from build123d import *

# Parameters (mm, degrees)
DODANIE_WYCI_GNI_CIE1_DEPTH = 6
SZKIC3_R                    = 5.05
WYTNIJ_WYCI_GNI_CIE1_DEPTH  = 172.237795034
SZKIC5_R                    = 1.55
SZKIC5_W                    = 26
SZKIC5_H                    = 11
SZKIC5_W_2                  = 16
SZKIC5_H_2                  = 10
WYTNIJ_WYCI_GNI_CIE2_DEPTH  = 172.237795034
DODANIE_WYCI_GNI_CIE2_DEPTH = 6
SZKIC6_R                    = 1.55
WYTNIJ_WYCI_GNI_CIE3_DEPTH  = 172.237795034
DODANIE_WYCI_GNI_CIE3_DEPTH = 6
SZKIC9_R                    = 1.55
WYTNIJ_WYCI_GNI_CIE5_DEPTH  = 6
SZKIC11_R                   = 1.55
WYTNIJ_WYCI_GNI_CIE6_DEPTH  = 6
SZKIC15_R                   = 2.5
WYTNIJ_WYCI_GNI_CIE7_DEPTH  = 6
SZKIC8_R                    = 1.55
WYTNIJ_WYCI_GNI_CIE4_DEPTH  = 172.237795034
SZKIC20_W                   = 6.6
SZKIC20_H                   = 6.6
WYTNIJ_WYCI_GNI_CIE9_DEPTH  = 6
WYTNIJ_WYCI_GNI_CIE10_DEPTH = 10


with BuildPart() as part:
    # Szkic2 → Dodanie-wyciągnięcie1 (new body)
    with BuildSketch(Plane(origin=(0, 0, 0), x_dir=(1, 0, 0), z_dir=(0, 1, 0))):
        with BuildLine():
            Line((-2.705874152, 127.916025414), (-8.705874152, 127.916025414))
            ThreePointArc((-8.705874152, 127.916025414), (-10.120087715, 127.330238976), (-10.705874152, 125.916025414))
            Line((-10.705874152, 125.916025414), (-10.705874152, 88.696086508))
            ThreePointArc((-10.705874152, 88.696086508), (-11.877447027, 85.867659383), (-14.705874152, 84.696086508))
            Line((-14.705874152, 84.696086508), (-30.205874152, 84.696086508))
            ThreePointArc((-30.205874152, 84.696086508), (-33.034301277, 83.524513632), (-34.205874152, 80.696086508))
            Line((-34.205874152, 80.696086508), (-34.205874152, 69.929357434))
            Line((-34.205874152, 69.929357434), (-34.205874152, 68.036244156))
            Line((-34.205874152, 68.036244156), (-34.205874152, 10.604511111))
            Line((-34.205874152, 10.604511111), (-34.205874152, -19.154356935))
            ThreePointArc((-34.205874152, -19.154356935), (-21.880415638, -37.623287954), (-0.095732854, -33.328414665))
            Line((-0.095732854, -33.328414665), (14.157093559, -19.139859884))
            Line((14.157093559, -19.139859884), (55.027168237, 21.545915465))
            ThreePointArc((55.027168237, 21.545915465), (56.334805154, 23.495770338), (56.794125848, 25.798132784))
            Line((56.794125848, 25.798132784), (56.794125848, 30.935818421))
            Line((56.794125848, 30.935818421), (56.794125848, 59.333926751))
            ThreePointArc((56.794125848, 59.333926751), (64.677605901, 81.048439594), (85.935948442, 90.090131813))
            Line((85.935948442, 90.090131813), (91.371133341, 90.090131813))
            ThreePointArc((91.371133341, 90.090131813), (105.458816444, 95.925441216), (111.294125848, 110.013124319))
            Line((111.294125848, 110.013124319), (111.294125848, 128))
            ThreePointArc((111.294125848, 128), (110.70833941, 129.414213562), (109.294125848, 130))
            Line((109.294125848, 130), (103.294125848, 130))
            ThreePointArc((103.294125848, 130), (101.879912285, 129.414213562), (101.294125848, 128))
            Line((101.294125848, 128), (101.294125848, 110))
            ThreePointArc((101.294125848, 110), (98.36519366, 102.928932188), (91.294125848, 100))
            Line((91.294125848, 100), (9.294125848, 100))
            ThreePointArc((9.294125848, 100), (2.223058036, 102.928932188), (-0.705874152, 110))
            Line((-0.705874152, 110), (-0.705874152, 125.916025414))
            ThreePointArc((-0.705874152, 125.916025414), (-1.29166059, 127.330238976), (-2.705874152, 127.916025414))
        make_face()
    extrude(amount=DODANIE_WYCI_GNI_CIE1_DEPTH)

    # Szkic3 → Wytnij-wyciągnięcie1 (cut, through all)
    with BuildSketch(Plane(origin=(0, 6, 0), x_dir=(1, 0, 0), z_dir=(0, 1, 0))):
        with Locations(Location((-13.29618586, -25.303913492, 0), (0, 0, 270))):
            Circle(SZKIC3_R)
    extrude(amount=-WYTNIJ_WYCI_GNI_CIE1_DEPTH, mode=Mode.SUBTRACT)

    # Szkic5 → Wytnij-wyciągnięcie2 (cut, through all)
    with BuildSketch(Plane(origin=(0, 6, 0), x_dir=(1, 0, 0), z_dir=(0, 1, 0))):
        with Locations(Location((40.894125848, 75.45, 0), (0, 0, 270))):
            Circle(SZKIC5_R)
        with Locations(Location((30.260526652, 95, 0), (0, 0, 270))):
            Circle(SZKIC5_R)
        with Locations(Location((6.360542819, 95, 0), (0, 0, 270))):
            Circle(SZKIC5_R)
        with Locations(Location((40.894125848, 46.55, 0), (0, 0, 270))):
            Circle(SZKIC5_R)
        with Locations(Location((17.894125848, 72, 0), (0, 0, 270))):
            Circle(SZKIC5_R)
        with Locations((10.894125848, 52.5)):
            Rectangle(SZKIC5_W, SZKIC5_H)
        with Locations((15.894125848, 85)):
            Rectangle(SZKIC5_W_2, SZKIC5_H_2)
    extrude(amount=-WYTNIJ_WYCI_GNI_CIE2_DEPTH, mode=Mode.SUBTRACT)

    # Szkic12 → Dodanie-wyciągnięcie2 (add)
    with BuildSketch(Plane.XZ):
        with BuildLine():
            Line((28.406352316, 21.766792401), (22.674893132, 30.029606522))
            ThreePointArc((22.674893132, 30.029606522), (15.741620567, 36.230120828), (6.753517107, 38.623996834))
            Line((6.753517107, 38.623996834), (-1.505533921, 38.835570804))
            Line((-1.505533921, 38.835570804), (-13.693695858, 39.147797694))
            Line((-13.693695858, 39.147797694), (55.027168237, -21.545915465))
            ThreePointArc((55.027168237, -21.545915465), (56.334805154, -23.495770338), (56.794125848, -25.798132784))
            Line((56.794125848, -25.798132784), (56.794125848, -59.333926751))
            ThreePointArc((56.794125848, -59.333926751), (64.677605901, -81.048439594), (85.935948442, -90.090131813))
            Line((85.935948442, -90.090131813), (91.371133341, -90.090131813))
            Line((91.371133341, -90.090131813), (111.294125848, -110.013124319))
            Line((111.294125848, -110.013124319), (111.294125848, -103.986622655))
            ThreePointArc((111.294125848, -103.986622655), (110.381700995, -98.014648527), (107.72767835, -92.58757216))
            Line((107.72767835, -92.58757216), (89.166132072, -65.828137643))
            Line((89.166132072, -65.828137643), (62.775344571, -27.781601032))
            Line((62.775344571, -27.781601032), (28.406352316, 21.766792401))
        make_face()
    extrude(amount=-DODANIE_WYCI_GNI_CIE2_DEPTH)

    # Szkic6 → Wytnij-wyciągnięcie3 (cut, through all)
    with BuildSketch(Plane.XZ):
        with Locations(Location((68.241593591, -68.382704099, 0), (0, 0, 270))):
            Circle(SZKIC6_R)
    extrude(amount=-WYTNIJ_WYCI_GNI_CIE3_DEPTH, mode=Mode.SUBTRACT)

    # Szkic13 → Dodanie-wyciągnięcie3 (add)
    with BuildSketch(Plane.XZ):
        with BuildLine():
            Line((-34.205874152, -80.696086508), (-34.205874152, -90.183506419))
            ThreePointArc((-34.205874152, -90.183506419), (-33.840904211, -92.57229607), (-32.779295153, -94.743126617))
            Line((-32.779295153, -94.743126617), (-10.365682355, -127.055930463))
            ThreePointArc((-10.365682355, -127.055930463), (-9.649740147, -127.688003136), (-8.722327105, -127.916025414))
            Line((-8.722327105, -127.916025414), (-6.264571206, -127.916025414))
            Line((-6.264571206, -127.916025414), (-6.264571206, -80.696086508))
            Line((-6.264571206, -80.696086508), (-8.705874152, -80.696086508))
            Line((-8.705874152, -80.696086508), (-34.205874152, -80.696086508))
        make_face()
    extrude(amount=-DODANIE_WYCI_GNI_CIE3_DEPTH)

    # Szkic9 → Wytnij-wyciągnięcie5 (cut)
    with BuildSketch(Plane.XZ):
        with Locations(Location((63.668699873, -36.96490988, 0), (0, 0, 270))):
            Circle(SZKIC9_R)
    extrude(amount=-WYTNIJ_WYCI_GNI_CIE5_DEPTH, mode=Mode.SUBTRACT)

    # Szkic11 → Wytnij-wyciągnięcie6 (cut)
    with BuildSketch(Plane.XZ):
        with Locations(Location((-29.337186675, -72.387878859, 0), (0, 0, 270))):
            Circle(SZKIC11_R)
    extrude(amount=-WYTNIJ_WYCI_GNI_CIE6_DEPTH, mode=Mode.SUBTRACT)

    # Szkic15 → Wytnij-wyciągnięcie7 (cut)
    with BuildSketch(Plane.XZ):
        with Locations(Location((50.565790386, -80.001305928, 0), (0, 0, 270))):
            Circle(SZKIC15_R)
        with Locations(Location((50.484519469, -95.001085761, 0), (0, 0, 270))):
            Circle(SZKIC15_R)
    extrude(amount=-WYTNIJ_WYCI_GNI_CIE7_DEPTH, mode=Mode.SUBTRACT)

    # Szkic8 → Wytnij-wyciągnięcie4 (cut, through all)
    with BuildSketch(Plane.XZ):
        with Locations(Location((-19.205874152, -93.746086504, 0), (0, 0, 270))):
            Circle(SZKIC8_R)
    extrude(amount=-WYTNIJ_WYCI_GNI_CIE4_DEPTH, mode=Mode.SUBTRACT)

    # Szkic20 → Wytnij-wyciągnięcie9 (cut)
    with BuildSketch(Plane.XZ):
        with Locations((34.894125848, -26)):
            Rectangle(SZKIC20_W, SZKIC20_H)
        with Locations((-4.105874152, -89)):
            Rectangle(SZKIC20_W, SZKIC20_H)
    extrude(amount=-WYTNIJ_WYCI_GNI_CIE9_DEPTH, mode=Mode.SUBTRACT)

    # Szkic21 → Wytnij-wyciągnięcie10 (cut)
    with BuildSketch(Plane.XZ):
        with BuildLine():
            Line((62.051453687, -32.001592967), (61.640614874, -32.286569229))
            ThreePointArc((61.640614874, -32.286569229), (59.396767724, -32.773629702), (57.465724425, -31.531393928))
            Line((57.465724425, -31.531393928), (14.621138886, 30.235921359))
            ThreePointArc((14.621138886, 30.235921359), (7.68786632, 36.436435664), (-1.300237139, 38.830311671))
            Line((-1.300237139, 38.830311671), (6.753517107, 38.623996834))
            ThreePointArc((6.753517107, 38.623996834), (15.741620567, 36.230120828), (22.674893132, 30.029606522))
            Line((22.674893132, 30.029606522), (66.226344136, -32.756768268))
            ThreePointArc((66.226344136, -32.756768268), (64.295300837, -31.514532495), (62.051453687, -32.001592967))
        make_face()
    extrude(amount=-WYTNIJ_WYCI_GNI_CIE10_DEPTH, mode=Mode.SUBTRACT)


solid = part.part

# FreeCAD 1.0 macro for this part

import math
import FreeCAD as App
import Part
import Sketcher
from FreeCAD import Vector
Q = App.Units.Quantity


def add_polygon(sketch, points):
    """Adds a closed chain of lines whose ends are joined by coincident constraints."""
    first, n = sketch.GeometryCount, len(points)
    for a, b in zip(points, points[1:] + points[:1]):
        sketch.addGeometry(Part.LineSegment(App.Vector(*a, 0), App.Vector(*b, 0)), False)
    for i in range(n):
        sketch.addConstraint(Sketcher.Constraint("Coincident", first + i, 2, first + (i + 1) % n, 1))

doc = App.newDocument("Part")
params = doc.addObject("Spreadsheet::Sheet", "Params")
for row, (alias, value) in enumerate([
    ("sketch1_radius", "2 mm"),
    ("sketch1_radius2", "4 mm"),
    ("sketch1_radius3", "20 mm"),
    ("sketch1_radius4", "6 mm"),
    ("sketch1_radius5", "10 mm"),
    ("pad1_length", "6 mm"),
    ("sketch2_diameter", "10.1 mm"),
    ("sketch3_diameter", "3.1 mm"),
    ("sketch3_width", "26 mm"),
    ("sketch3_width2", "16 mm"),
    ("sketch3_height", "11 mm"),
    ("sketch3_height2", "10 mm"),
    ("sketch4_radius", "20 mm"),
    ("sketch4_radius2", "6 mm"),
    ("pad2_length", "6 mm"),
    ("sketch5_diameter", "3.1 mm"),
    ("sketch6_radius", "8 mm"),
    ("sketch6_radius2", "2 mm"),
    ("pad3_length", "6 mm"),
    ("sketch7_diameter", "3.1 mm"),
    ("pocket4_length", "6 mm"),
    ("sketch8_diameter", "3.1 mm"),
    ("pocket5_length", "6 mm"),
    ("sketch9_diameter", "5 mm"),
    ("pocket6_length", "6 mm"),
    ("sketch10_diameter", "3.1 mm"),
    ("sketch11_width", "6.6 mm"),
    ("pocket8_length", "6 mm"),
    ("sketch12_radius", "3 mm"),
    ("sketch12_radius2", "20 mm"),
    ("sketch12_length", "0.5 mm"),
    ("pocket9_length", "10 mm"),
], start=1):
    params.set(f"A{row}", alias)
    params.set(f"B{row}", "=" + value)
    params.setAlias(f"B{row}", alias)

body = doc.addObject("PartDesign::Body", "Body")

# Sketch on XZ plane
sketch1 = body.newObject("Sketcher::SketchObject", "Sketch")
sketch1.AttachmentSupport = (doc.getObject("XZ_Plane"), [""])
sketch1.MapMode = "FlatFace"
sketch1.addGeometry(Part.LineSegment(Vector(-2.7, -127.9, 0), Vector(-8.7, -127.9, 0)), False)
sketch1.addGeometry(Part.ArcOfCircle(Part.Circle(Vector(-8.7, -125.9, 0), Vector(0, 0, 1), 2), math.radians(180), math.radians(270)), False)
sketch1.addGeometry(Part.LineSegment(Vector(-10.7, -125.9, 0), Vector(-10.7, -88.7, 0)), False)
sketch1.addGeometry(Part.ArcOfCircle(Part.Circle(Vector(-14.7, -88.7, 0), Vector(0, 0, 1), 4), math.radians(0), math.radians(90)), False)
sketch1.addGeometry(Part.LineSegment(Vector(-14.7, -84.7, 0), Vector(-30.2, -84.7, 0)), False)
sketch1.addGeometry(Part.ArcOfCircle(Part.Circle(Vector(-30.2, -80.7, 0), Vector(0, 0, 1), 4), math.radians(-180), math.radians(-90)), False)
sketch1.addGeometry(Part.LineSegment(Vector(-34.2, -80.7, 0), Vector(-34.2, 19.2, 0)), False)
sketch1.addGeometry(Part.ArcOfCircle(Part.Circle(Vector(-14.2, 19.2, 0), Vector(0, 0, 1), 20), math.radians(45), math.radians(180)), False)
sketch1.addGeometry(Part.LineSegment(Vector(-0.1, 33.3, 0), Vector(14.2, 19.1, 0)), False)
sketch1.addGeometry(Part.LineSegment(Vector(14.2, 19.1, 0), Vector(55, -21.5, 0)), False)
sketch1.addGeometry(Part.ArcOfCircle(Part.Circle(Vector(50.8, -25.8, 0), Vector(0, 0, 1), 6), math.radians(0), math.radians(45)), False)
sketch1.addGeometry(Part.LineSegment(Vector(56.8, -25.8, 0), Vector(56.8, -59.3, 0)), False)
sketch1.addGeometry(Part.ArcOfCircle(Part.Circle(Vector(85.7, -61.1, 0), Vector(0, 0, 1), 29), math.radians(176), math.radians(270)), False)
sketch1.addGeometry(Part.LineSegment(Vector(85.9, -90.1, 0), Vector(91.4, -90.1, 0)), False)
sketch1.addGeometry(Part.ArcOfCircle(Part.Circle(Vector(91.4, -110, 0), Vector(0, 0, 1), 19.9), math.radians(0), math.radians(90)), False)
sketch1.addGeometry(Part.LineSegment(Vector(111.3, -110, 0), Vector(111.3, -128, 0)), False)
sketch1.addGeometry(Part.ArcOfCircle(Part.Circle(Vector(109.3, -128, 0), Vector(0, 0, 1), 2), math.radians(-90), math.radians(0)), False)
sketch1.addGeometry(Part.LineSegment(Vector(109.3, -130, 0), Vector(103.3, -130, 0)), False)
sketch1.addGeometry(Part.ArcOfCircle(Part.Circle(Vector(103.3, -128, 0), Vector(0, 0, 1), 2), math.radians(180), math.radians(270)), False)
sketch1.addGeometry(Part.LineSegment(Vector(101.3, -128, 0), Vector(101.3, -110, 0)), False)
sketch1.addGeometry(Part.ArcOfCircle(Part.Circle(Vector(91.3, -110, 0), Vector(0, 0, 1), 10), math.radians(0), math.radians(90)), False)
sketch1.addGeometry(Part.LineSegment(Vector(91.3, -100, 0), Vector(9.3, -100, 0)), False)
sketch1.addGeometry(Part.ArcOfCircle(Part.Circle(Vector(9.3, -110, 0), Vector(0, 0, 1), 10), math.radians(90), math.radians(180)), False)
sketch1.addGeometry(Part.LineSegment(Vector(-0.7, -110, 0), Vector(-0.7, -125.9, 0)), False)
sketch1.addGeometry(Part.ArcOfCircle(Part.Circle(Vector(-2.7, -125.9, 0), Vector(0, 0, 1), 2), math.radians(-90), math.radians(0)), False)
sketch1.addConstraint(Sketcher.Constraint("Tangent", 0, 2, 1, 2))
sketch1.addConstraint(Sketcher.Constraint("Tangent", 1, 1, 2, 1))
sketch1.addConstraint(Sketcher.Constraint("Tangent", 2, 2, 3, 1))
sketch1.addConstraint(Sketcher.Constraint("Tangent", 3, 2, 4, 1))
sketch1.addConstraint(Sketcher.Constraint("Tangent", 4, 2, 5, 2))
sketch1.addConstraint(Sketcher.Constraint("Tangent", 5, 1, 6, 1))
sketch1.addConstraint(Sketcher.Constraint("Tangent", 6, 2, 7, 2))
sketch1.addConstraint(Sketcher.Constraint("Tangent", 7, 1, 8, 1))
sketch1.addConstraint(Sketcher.Constraint("Coincident", 8, 2, 9, 1))
sketch1.addConstraint(Sketcher.Constraint("Tangent", 9, 2, 10, 2))
sketch1.addConstraint(Sketcher.Constraint("Tangent", 10, 1, 11, 1))
sketch1.addConstraint(Sketcher.Constraint("Coincident", 11, 2, 12, 1))
sketch1.addConstraint(Sketcher.Constraint("Coincident", 12, 2, 13, 1))
sketch1.addConstraint(Sketcher.Constraint("Tangent", 13, 2, 14, 2))
sketch1.addConstraint(Sketcher.Constraint("Tangent", 14, 1, 15, 1))
sketch1.addConstraint(Sketcher.Constraint("Tangent", 15, 2, 16, 2))
sketch1.addConstraint(Sketcher.Constraint("Tangent", 16, 1, 17, 1))
sketch1.addConstraint(Sketcher.Constraint("Tangent", 17, 2, 18, 2))
sketch1.addConstraint(Sketcher.Constraint("Tangent", 18, 1, 19, 1))
sketch1.addConstraint(Sketcher.Constraint("Tangent", 19, 2, 20, 1))
sketch1.addConstraint(Sketcher.Constraint("Tangent", 20, 2, 21, 1))
sketch1.addConstraint(Sketcher.Constraint("Tangent", 21, 2, 22, 1))
sketch1.addConstraint(Sketcher.Constraint("Tangent", 22, 2, 23, 1))
sketch1.addConstraint(Sketcher.Constraint("Tangent", 23, 2, 24, 2))
sketch1.addConstraint(Sketcher.Constraint("Tangent", 24, 1, 0, 1))
sketch1.addConstraint(Sketcher.Constraint("Horizontal", 0))
sketch1.addConstraint(Sketcher.Constraint("Vertical", 2))
sketch1.addConstraint(Sketcher.Constraint("Horizontal", 4))
sketch1.addConstraint(Sketcher.Constraint("Vertical", 6))
sketch1.addConstraint(Sketcher.Constraint("Vertical", 11))
sketch1.addConstraint(Sketcher.Constraint("Horizontal", 13))
sketch1.addConstraint(Sketcher.Constraint("Vertical", 15))
sketch1.addConstraint(Sketcher.Constraint("Horizontal", 17))
sketch1.addConstraint(Sketcher.Constraint("Vertical", 19))
sketch1.addConstraint(Sketcher.Constraint("Horizontal", 21))
sketch1.addConstraint(Sketcher.Constraint("Vertical", 23))
sketch1.addConstraint(Sketcher.Constraint("Equal", 3, 5))
sketch1.addConstraint(Sketcher.Constraint("Equal", 1, 16))
sketch1.addConstraint(Sketcher.Constraint("Equal", 16, 18))
sketch1.addConstraint(Sketcher.Constraint("Equal", 20, 22))
sketch1.addConstraint(Sketcher.Constraint("Equal", 18, 24))
sketch1.addConstraint(Sketcher.Constraint("Parallel", 8, 9))
sketch1.addConstraint(Sketcher.Constraint("Equal", 0, 17))
sketch1.addConstraint(Sketcher.Constraint("Radius", 1, 2.0))
sketch1.addConstraint(Sketcher.Constraint("Radius", 3, 4.0))
sketch1.addConstraint(Sketcher.Constraint("Radius", 7, 20.0))
sketch1.addConstraint(Sketcher.Constraint("Radius", 10, 6.0))
sketch1.addConstraint(Sketcher.Constraint("Radius", 20, 10.0))
sketch1.addConstraint(Sketcher.Constraint("DistanceX", 0, 2, 0, 1, 6.0))
sketch1.addConstraint(Sketcher.Constraint("DistanceX", 21, 2, 21, 1, 82.0))
sketch1.addConstraint(Sketcher.Constraint("DistanceY", 19, 1, 19, 2, 18.0))
sketch1.addConstraint(Sketcher.Constraint("DistanceX", 4, 2, 4, 1, 15.5))
sketch1.addConstraint(Sketcher.Constraint("DistanceY", 16, 3, -1, 1, 128.0))
sketch1.addConstraint(Sketcher.Constraint("DistanceX", 7, 3, 10, 3, 65.0))
sketch1.addConstraint(Sketcher.Constraint("Radius", 12, 28.964128))
sketch1.addConstraint(Sketcher.Constraint("Radius", 14, 19.922993))
sketch1.addConstraint(Sketcher.Constraint("DistanceY", 2, 1, 2, 2, 37.219939))
sketch1.addConstraint(Sketcher.Constraint("DistanceY", 12, 3, 7, 3, 80.2813))
sketch1.addConstraint(Sketcher.Constraint("DistanceY", 1, 3, 14, 3, 15.902901))
sketch1.addConstraint(Sketcher.Constraint("DistanceY", 5, 3, 7, 1, 114.024501))
sketch1.addConstraint(Sketcher.Constraint("Distance", 9, 57.668842))
sketch1.addConstraint(Sketcher.Constraint("DistanceX", 13, 1, 13, 2, 5.435185))
sketch1.addConstraint(Sketcher.Constraint("DistanceY", 11, 2, 11, 1, 33.535794))
sketch1.addConstraint(Sketcher.Constraint("DistanceY", 15, 2, 15, 1, 17.986876))
sketch1.addConstraint(Sketcher.Constraint("DistanceX", -1, 1, 9, 2, 55.027168))
sketch1.setExpression("Constraints[43]", "Params.sketch1_radius")
sketch1.setExpression("Constraints[44]", "Params.sketch1_radius2")
sketch1.setExpression("Constraints[45]", "Params.sketch1_radius3")
sketch1.setExpression("Constraints[46]", "Params.sketch1_radius4")
sketch1.setExpression("Constraints[47]", "Params.sketch1_radius5")
pad1 = body.newObject("PartDesign::Pad", "Pad")
pad1.Profile = sketch1
pad1.setExpression("Length", "Params.pad1_length")
pad1.Reversed = True

# Sketch on XZ plane
sketch2 = body.newObject("Sketcher::SketchObject", "Sketch001")
sketch2.AttachmentSupport = (doc.getObject("XZ_Plane"), [""])
sketch2.MapMode = "FlatFace"
sketch2.AttachmentOffset = App.Placement(Vector(0, 0, -6), App.Rotation())
sketch2.addGeometry(Part.Circle(Vector(-13, 25, 0), Vector(0, 0, 1), 5), False)
sketch2.addConstraint(Sketcher.Constraint("Diameter", 0, 10.1))
sketch2.addConstraint(Sketcher.Constraint("DistanceX", 0, 3, -1, 1, 13.296186))
sketch2.addConstraint(Sketcher.Constraint("DistanceY", -1, 1, 0, 3, 25.303913))
sketch2.setExpression("Constraints[0]", "Params.sketch2_diameter")
pocket1 = body.newObject("PartDesign::Pocket", "Pocket")
pocket1.Profile = sketch2
pocket1.Type = "ThroughAll"
pocket1.Reversed = True

# Sketch on XZ plane
sketch3 = body.newObject("Sketcher::SketchObject", "Sketch002")
sketch3.AttachmentSupport = (doc.getObject("XZ_Plane"), [""])
sketch3.MapMode = "FlatFace"
sketch3.AttachmentOffset = App.Placement(Vector(0, 0, -6), App.Rotation())
sketch3.addGeometry(Part.Circle(Vector(40.9, -75.5, 0), Vector(0, 0, 1), 1.6), False)  # 0
sketch3.addGeometry(Part.Circle(Vector(30.3, -95, 0), Vector(0, 0, 1), 1.6), False)  # 1
sketch3.addGeometry(Part.Circle(Vector(6.4, -95, 0), Vector(0, 0, 1), 1.6), False)  # 2
sketch3.addGeometry(Part.Circle(Vector(40.9, -46.5, 0), Vector(0, 0, 1), 1.6), False)  # 3
sketch3.addGeometry(Part.Circle(Vector(17.9, -72, 0), Vector(0, 0, 1), 1.6), False)  # 4
add_polygon(sketch3, [(-2.1, -58), (-2.1, -47), (23.9, -47), (23.9, -58)])  # lines 5-8
add_polygon(sketch3, [(7.9, -90), (7.9, -80), (23.9, -80), (23.9, -90)])  # lines 9-12
sketch3.addConstraint(Sketcher.Constraint("Vertical", 5))
sketch3.addConstraint(Sketcher.Constraint("Horizontal", 6))
sketch3.addConstraint(Sketcher.Constraint("Vertical", 7))
sketch3.addConstraint(Sketcher.Constraint("Horizontal", 8))
sketch3.addConstraint(Sketcher.Constraint("Vertical", 9))
sketch3.addConstraint(Sketcher.Constraint("Horizontal", 10))
sketch3.addConstraint(Sketcher.Constraint("Vertical", 11))
sketch3.addConstraint(Sketcher.Constraint("Horizontal", 12))
sketch3.addConstraint(Sketcher.Constraint("Equal", 0, 1))
sketch3.addConstraint(Sketcher.Constraint("Equal", 1, 2))
sketch3.addConstraint(Sketcher.Constraint("Equal", 2, 3))
sketch3.addConstraint(Sketcher.Constraint("Equal", 3, 4))
sketch3.addConstraint(Sketcher.Constraint("Horizontal", 1, 3, 2, 3))
sketch3.addConstraint(Sketcher.Constraint("Vertical", 0, 3, 3, 3))
sketch3.addConstraint(Sketcher.Constraint("Vertical", 7, 2, 10, 2))
sketch3.addConstraint(Sketcher.Constraint("Diameter", 0, 3.1))
sketch3.addConstraint(Sketcher.Constraint("DistanceX", 6, 1, 6, 2, 26.0))
sketch3.addConstraint(Sketcher.Constraint("DistanceX", 10, 1, 10, 2, 16.0))
sketch3.addConstraint(Sketcher.Constraint("DistanceY", 5, 1, 5, 2, 11.0))
sketch3.addConstraint(Sketcher.Constraint("DistanceY", 9, 1, 9, 2, 10.0))
sketch3.addConstraint(Sketcher.Constraint("DistanceY", 1, 3, -1, 1, 95.0))
sketch3.addConstraint(Sketcher.Constraint("DistanceY", 4, 3, -1, 1, 72.0))
sketch3.addConstraint(Sketcher.Constraint("DistanceY", 5, 2, -1, 1, 47.0))
sketch3.addConstraint(Sketcher.Constraint("DistanceY", 9, 2, -1, 1, 80.0))
sketch3.addConstraint(Sketcher.Constraint("DistanceX", 4, 3, 0, 3, 23.0))
sketch3.addConstraint(Sketcher.Constraint("DistanceX", 5, 2, 4, 3, 20.0))
sketch3.addConstraint(Sketcher.Constraint("DistanceY", 0, 3, 3, 3, 28.9))
sketch3.addConstraint(Sketcher.Constraint("DistanceY", 0, 3, -1, 1, 75.45))
sketch3.addConstraint(Sketcher.Constraint("DistanceX", 1, 3, 0, 3, 10.633599))
sketch3.addConstraint(Sketcher.Constraint("DistanceX", -1, 1, 0, 3, 40.894126))
sketch3.addConstraint(Sketcher.Constraint("DistanceX", -1, 1, 2, 3, 6.360543))
sketch3.setExpression("Constraints[23]", "Params.sketch3_diameter")
sketch3.setExpression("Constraints[24]", "Params.sketch3_width")
sketch3.setExpression("Constraints[25]", "Params.sketch3_width2")
sketch3.setExpression("Constraints[26]", "Params.sketch3_height")
sketch3.setExpression("Constraints[27]", "Params.sketch3_height2")
pocket2 = body.newObject("PartDesign::Pocket", "Pocket001")
pocket2.Profile = sketch3
pocket2.Type = "ThroughAll"
pocket2.Reversed = True

# Sketch on XZ plane
sketch4 = body.newObject("Sketcher::SketchObject", "Sketch003")
sketch4.AttachmentSupport = (doc.getObject("XZ_Plane"), [""])
sketch4.MapMode = "FlatFace"
sketch4.addGeometry(Part.LineSegment(Vector(28.4, 21.8, 0), Vector(22.7, 30, 0)), False)
sketch4.addGeometry(Part.ArcOfCircle(Part.Circle(Vector(6.2, 18.6, 0), Vector(0, 0, 1), 20), math.radians(35), math.radians(89)), False)
sketch4.addGeometry(Part.LineSegment(Vector(6.8, 38.6, 0), Vector(-1.5, 38.8, 0)), False)
sketch4.addGeometry(Part.LineSegment(Vector(-1.5, 38.8, 0), Vector(-13.7, 39.1, 0)), False)
sketch4.addGeometry(Part.LineSegment(Vector(-13.7, 39.1, 0), Vector(55, -21.5, 0)), False)
sketch4.addGeometry(Part.ArcOfCircle(Part.Circle(Vector(50.8, -25.8, 0), Vector(0, 0, 1), 6), math.radians(0), math.radians(45)), False)
sketch4.addGeometry(Part.LineSegment(Vector(56.8, -25.8, 0), Vector(56.8, -59.3, 0)), False)
sketch4.addGeometry(Part.ArcOfCircle(Part.Circle(Vector(85.7, -61.1, 0), Vector(0, 0, 1), 29), math.radians(176), math.radians(270)), False)
sketch4.addGeometry(Part.LineSegment(Vector(85.9, -90.1, 0), Vector(91.4, -90.1, 0)), False)
sketch4.addGeometry(Part.LineSegment(Vector(91.4, -90.1, 0), Vector(111.3, -110, 0)), False)
sketch4.addGeometry(Part.LineSegment(Vector(111.3, -110, 0), Vector(111.3, -104, 0)), False)
sketch4.addGeometry(Part.ArcOfCircle(Part.Circle(Vector(91.3, -104, 0), Vector(0, 0, 1), 20), math.radians(0), math.radians(35)), False)
sketch4.addGeometry(Part.LineSegment(Vector(107.7, -92.6, 0), Vector(89.2, -65.8, 0)), False)
sketch4.addGeometry(Part.LineSegment(Vector(89.2, -65.8, 0), Vector(62.8, -27.8, 0)), False)
sketch4.addGeometry(Part.LineSegment(Vector(62.8, -27.8, 0), Vector(28.4, 21.8, 0)), False)
sketch4.addConstraint(Sketcher.Constraint("Tangent", 0, 2, 1, 1))
sketch4.addConstraint(Sketcher.Constraint("Tangent", 1, 2, 2, 1))
sketch4.addConstraint(Sketcher.Constraint("Coincident", 2, 2, 3, 1))
sketch4.addConstraint(Sketcher.Constraint("Coincident", 3, 2, 4, 1))
sketch4.addConstraint(Sketcher.Constraint("Coincident", 4, 2, 5, 2))
sketch4.addConstraint(Sketcher.Constraint("Tangent", 5, 1, 6, 1))
sketch4.addConstraint(Sketcher.Constraint("Coincident", 6, 2, 7, 1))
sketch4.addConstraint(Sketcher.Constraint("Coincident", 7, 2, 8, 1))
sketch4.addConstraint(Sketcher.Constraint("Coincident", 8, 2, 9, 1))
sketch4.addConstraint(Sketcher.Constraint("Coincident", 9, 2, 10, 1))
sketch4.addConstraint(Sketcher.Constraint("Tangent", 10, 2, 11, 1))
sketch4.addConstraint(Sketcher.Constraint("Tangent", 11, 2, 12, 1))
sketch4.addConstraint(Sketcher.Constraint("Coincident", 12, 2, 13, 1))
sketch4.addConstraint(Sketcher.Constraint("Coincident", 13, 2, 14, 1))
sketch4.addConstraint(Sketcher.Constraint("Coincident", 14, 2, 0, 1))
sketch4.addConstraint(Sketcher.Constraint("Vertical", 6))
sketch4.addConstraint(Sketcher.Constraint("Horizontal", 8))
sketch4.addConstraint(Sketcher.Constraint("Vertical", 10))
sketch4.addConstraint(Sketcher.Constraint("Equal", 1, 11))
sketch4.addConstraint(Sketcher.Constraint("Parallel", 2, 3))
sketch4.addConstraint(Sketcher.Constraint("Parallel", 0, 12))
sketch4.addConstraint(Sketcher.Constraint("Parallel", 12, 13))
sketch4.addConstraint(Sketcher.Constraint("Parallel", 13, 14))
sketch4.addConstraint(Sketcher.Constraint("Radius", 1, 20.0))
sketch4.addConstraint(Sketcher.Constraint("Radius", 5, 6.0))
sketch4.addConstraint(Sketcher.Constraint("Angle", 9, Q("-45 deg")))
sketch4.addConstraint(Sketcher.Constraint("DistanceX", 5, 3, 11, 3, 40.5))
sketch4.addConstraint(Sketcher.Constraint("DistanceY", 10, 1, 10, 2, 6.026502))
sketch4.addConstraint(Sketcher.Constraint("Radius", 7, 28.964128))
sketch4.addConstraint(Sketcher.Constraint("DistanceY", 7, 2, 5, 1, 64.291999))
sketch4.addConstraint(Sketcher.Constraint("DistanceX", 12, 2, 8, 2, 2.205001))
sketch4.addConstraint(Sketcher.Constraint("Distance", 14, 60.3015))
sketch4.addConstraint(Sketcher.Constraint("DistanceY", 13, 2, -1, 1, 27.781601))
sketch4.addConstraint(Sketcher.Constraint("DistanceY", 7, 3, 1, 3, 79.757499))
sketch4.addConstraint(Sketcher.Constraint("DistanceY", 1, 2, 3, 2, 0.523801))
sketch4.addConstraint(Sketcher.Constraint("Distance", 0, 10.056029))
sketch4.addConstraint(Sketcher.Constraint("Distance", 2, 8.261761))
sketch4.addConstraint(Sketcher.Constraint("Distance", 3, 12.19216))
sketch4.addConstraint(Sketcher.Constraint("Distance", 4, 91.685789))
sketch4.addConstraint(Sketcher.Constraint("Distance", 12, 32.566829))
sketch4.addConstraint(Sketcher.Constraint("DistanceX", 8, 1, 8, 2, 5.435185))
sketch4.addConstraint(Sketcher.Constraint("DistanceY", 6, 2, 6, 1, 33.535794))
sketch4.addConstraint(Sketcher.Constraint("DistanceX", -1, 1, 1, 3, 6.241341))
sketch4.addConstraint(Sketcher.Constraint("DistanceY", -1, 1, 2, 2, 38.835571))
sketch4.setExpression("Constraints[23]", "Params.sketch4_radius")
sketch4.setExpression("Constraints[24]", "Params.sketch4_radius2")
pad2 = body.newObject("PartDesign::Pad", "Pad001")
pad2.Profile = sketch4
pad2.setExpression("Length", "Params.pad2_length")
pad2.Reversed = True

# Sketch on XZ plane
sketch5 = body.newObject("Sketcher::SketchObject", "Sketch004")
sketch5.AttachmentSupport = (doc.getObject("XZ_Plane"), [""])
sketch5.MapMode = "FlatFace"
sketch5.addGeometry(Part.Circle(Vector(68.2, -68.4, 0), Vector(0, 0, 1), 1.6), False)
sketch5.addConstraint(Sketcher.Constraint("Diameter", 0, 3.1))
sketch5.addConstraint(Sketcher.Constraint("DistanceX", -1, 1, 0, 3, 68.241594))
sketch5.addConstraint(Sketcher.Constraint("DistanceY", 0, 3, -1, 1, 68.382704))
sketch5.setExpression("Constraints[0]", "Params.sketch5_diameter")
pocket3 = body.newObject("PartDesign::Pocket", "Pocket002")
pocket3.Profile = sketch5
pocket3.Type = "ThroughAll"

# Sketch on XZ plane
sketch6 = body.newObject("Sketcher::SketchObject", "Sketch005")
sketch6.AttachmentSupport = (doc.getObject("XZ_Plane"), [""])
sketch6.MapMode = "FlatFace"
sketch6.addGeometry(Part.LineSegment(Vector(-34.2, -80.7, 0), Vector(-34.2, -90.2, 0)), False)
sketch6.addGeometry(Part.ArcOfCircle(Part.Circle(Vector(-26.2, -90.2, 0), Vector(0, 0, 1), 8), math.radians(-180), math.radians(-145)), False)
sketch6.addGeometry(Part.LineSegment(Vector(-32.8, -94.7, 0), Vector(-10.4, -127.1, 0)), False)
sketch6.addGeometry(Part.ArcOfCircle(Part.Circle(Vector(-8.7, -125.9, 0), Vector(0, 0, 1), 2), math.radians(-145), math.radians(-90)), False)
sketch6.addGeometry(Part.LineSegment(Vector(-8.7, -127.9, 0), Vector(-6.3, -127.9, 0)), False)
sketch6.addGeometry(Part.LineSegment(Vector(-6.3, -127.9, 0), Vector(-6.3, -80.7, 0)), False)
sketch6.addGeometry(Part.LineSegment(Vector(-6.3, -80.7, 0), Vector(-34.2, -80.7, 0)), False)
sketch6.addConstraint(Sketcher.Constraint("Tangent", 0, 2, 1, 1))
sketch6.addConstraint(Sketcher.Constraint("Tangent", 1, 2, 2, 1))
sketch6.addConstraint(Sketcher.Constraint("Tangent", 2, 2, 3, 1))
sketch6.addConstraint(Sketcher.Constraint("Tangent", 3, 2, 4, 1))
sketch6.addConstraint(Sketcher.Constraint("Coincident", 4, 2, 5, 1))
sketch6.addConstraint(Sketcher.Constraint("Coincident", 5, 2, 6, 1))
sketch6.addConstraint(Sketcher.Constraint("Coincident", 6, 2, 0, 1))
sketch6.addConstraint(Sketcher.Constraint("Vertical", 0))
sketch6.addConstraint(Sketcher.Constraint("Horizontal", 4))
sketch6.addConstraint(Sketcher.Constraint("Vertical", 5))
sketch6.addConstraint(Sketcher.Constraint("Horizontal", 6))
sketch6.addConstraint(Sketcher.Constraint("Radius", 1, 8.0))
sketch6.addConstraint(Sketcher.Constraint("Radius", 3, 2.0))
sketch6.addConstraint(Sketcher.Constraint("DistanceY", 0, 2, 0, 1, 9.48742))
sketch6.addConstraint(Sketcher.Constraint("DistanceY", 5, 1, 5, 2, 47.219939))
sketch6.addConstraint(Sketcher.Constraint("DistanceY", 3, 3, 1, 2, 31.172899))
sketch6.addConstraint(Sketcher.Constraint("DistanceX", 4, 1, 4, 2, 2.457756))
sketch6.addConstraint(Sketcher.Constraint("DistanceY", 2, 2, -1, 1, 127.05593))
sketch6.addConstraint(Sketcher.Constraint("DistanceX", 4, 2, -1, 1, 6.264571))
sketch6.setExpression("Constraints[11]", "Params.sketch6_radius")
sketch6.setExpression("Constraints[12]", "Params.sketch6_radius2")
pad3 = body.newObject("PartDesign::Pad", "Pad002")
pad3.Profile = sketch6
pad3.setExpression("Length", "Params.pad3_length")
pad3.Reversed = True

# Sketch on XZ plane
sketch7 = body.newObject("Sketcher::SketchObject", "Sketch006")
sketch7.AttachmentSupport = (doc.getObject("XZ_Plane"), [""])
sketch7.MapMode = "FlatFace"
sketch7.addGeometry(Part.Circle(Vector(63.7, -37, 0), Vector(0, 0, 1), 1.6), False)
sketch7.addConstraint(Sketcher.Constraint("Diameter", 0, 3.1))
sketch7.addConstraint(Sketcher.Constraint("DistanceX", -1, 1, 0, 3, 63.6687))
sketch7.addConstraint(Sketcher.Constraint("DistanceY", 0, 3, -1, 1, 36.96491))
sketch7.setExpression("Constraints[0]", "Params.sketch7_diameter")
pocket4 = body.newObject("PartDesign::Pocket", "Pocket003")
pocket4.Profile = sketch7
pocket4.setExpression("Length", "Params.pocket4_length")

# Sketch on XZ plane
sketch8 = body.newObject("Sketcher::SketchObject", "Sketch007")
sketch8.AttachmentSupport = (doc.getObject("XZ_Plane"), [""])
sketch8.MapMode = "FlatFace"
sketch8.addGeometry(Part.Circle(Vector(-29.3, -72.4, 0), Vector(0, 0, 1), 1.6), False)
sketch8.addConstraint(Sketcher.Constraint("Diameter", 0, 3.1))
sketch8.addConstraint(Sketcher.Constraint("DistanceY", 0, 3, -1, 1, 72.387879))
sketch8.addConstraint(Sketcher.Constraint("DistanceX", 0, 3, -1, 1, 29.337187))
sketch8.setExpression("Constraints[0]", "Params.sketch8_diameter")
pocket5 = body.newObject("PartDesign::Pocket", "Pocket004")
pocket5.Profile = sketch8
pocket5.setExpression("Length", "Params.pocket5_length")

# Sketch on XZ plane
sketch9 = body.newObject("Sketcher::SketchObject", "Sketch008")
sketch9.AttachmentSupport = (doc.getObject("XZ_Plane"), [""])
sketch9.MapMode = "FlatFace"
sketch9.addGeometry(Part.Circle(Vector(50.6, -80, 0), Vector(0, 0, 1), 2.5), False)
sketch9.addGeometry(Part.Circle(Vector(50.5, -95, 0), Vector(0, 0, 1), 2.5), False)
sketch9.addConstraint(Sketcher.Constraint("Equal", 0, 1))
sketch9.addConstraint(Sketcher.Constraint("Diameter", 0, 5.0))
sketch9.addConstraint(Sketcher.Constraint("DistanceX", -1, 1, 0, 3, 50.56579))
sketch9.addConstraint(Sketcher.Constraint("DistanceX", -1, 1, 1, 3, 50.484519))
sketch9.addConstraint(Sketcher.Constraint("DistanceY", 1, 3, 0, 3, 14.99978))
sketch9.addConstraint(Sketcher.Constraint("DistanceY", 0, 3, -1, 1, 80.001306))
sketch9.setExpression("Constraints[1]", "Params.sketch9_diameter")
pocket6 = body.newObject("PartDesign::Pocket", "Pocket005")
pocket6.Profile = sketch9
pocket6.setExpression("Length", "Params.pocket6_length")

# Sketch on XZ plane
sketch10 = body.newObject("Sketcher::SketchObject", "Sketch009")
sketch10.AttachmentSupport = (doc.getObject("XZ_Plane"), [""])
sketch10.MapMode = "FlatFace"
sketch10.addGeometry(Part.Circle(Vector(-19.2, -93.7, 0), Vector(0, 0, 1), 1.6), False)
sketch10.addConstraint(Sketcher.Constraint("Diameter", 0, 3.1))
sketch10.addConstraint(Sketcher.Constraint("DistanceX", 0, 3, -1, 1, 19.205874))
sketch10.addConstraint(Sketcher.Constraint("DistanceY", 0, 3, -1, 1, 93.746087))
sketch10.setExpression("Constraints[0]", "Params.sketch10_diameter")
pocket7 = body.newObject("PartDesign::Pocket", "Pocket006")
pocket7.Profile = sketch10
pocket7.Type = "ThroughAll"

# Sketch on XZ plane
sketch11 = body.newObject("Sketcher::SketchObject", "Sketch010")
sketch11.AttachmentSupport = (doc.getObject("XZ_Plane"), [""])
sketch11.MapMode = "FlatFace"
add_polygon(sketch11, [(32, -23), (32, -29), (38, -29), (38, -23)])  # lines 0-3
add_polygon(sketch11, [(-7, -86), (-7, -92), (-1, -92), (-1, -86)])  # lines 4-7
sketch11.addConstraint(Sketcher.Constraint("Vertical", 0))
sketch11.addConstraint(Sketcher.Constraint("Horizontal", 1))
sketch11.addConstraint(Sketcher.Constraint("Vertical", 2))
sketch11.addConstraint(Sketcher.Constraint("Horizontal", 3))
sketch11.addConstraint(Sketcher.Constraint("Vertical", 4))
sketch11.addConstraint(Sketcher.Constraint("Horizontal", 5))
sketch11.addConstraint(Sketcher.Constraint("Vertical", 6))
sketch11.addConstraint(Sketcher.Constraint("Horizontal", 7))
sketch11.addConstraint(Sketcher.Constraint("Equal", 3, 5))
sketch11.addConstraint(Sketcher.Constraint("Equal", 7, 0))
sketch11.addConstraint(Sketcher.Constraint("Equal", 2, 4))
sketch11.addConstraint(Sketcher.Constraint("DistanceX", 1, 1, 1, 2, 6.6))
sketch11.addConstraint(Sketcher.Constraint("DistanceX", 4, 2, 0, 2, 39.0))
sketch11.addConstraint(Sketcher.Constraint("DistanceY", 4, 2, 0, 2, 63.0))
sketch11.addConstraint(Sketcher.Constraint("DistanceY", 0, 2, -1, 1, 29.3))
sketch11.addConstraint(Sketcher.Constraint("DistanceX", -1, 1, 0, 2, 31.594126))
sketch11.setExpression("Constraints[19]", "Params.sketch11_width")
pocket8 = body.newObject("PartDesign::Pocket", "Pocket007")
pocket8.Profile = sketch11
pocket8.setExpression("Length", "Params.pocket8_length")

# Sketch on XZ plane
sketch12 = body.newObject("Sketcher::SketchObject", "Sketch011")
sketch12.AttachmentSupport = (doc.getObject("XZ_Plane"), [""])
sketch12.MapMode = "FlatFace"
sketch12.addGeometry(Part.LineSegment(Vector(61.6, -32.3, 0), Vector(62.1, -32, 0)), False)
sketch12.addGeometry(Part.ArcOfCircle(Part.Circle(Vector(63.8, -34.5, 0), Vector(0, 0, 1), 3), math.radians(35), math.radians(125)), False)
sketch12.addGeometry(Part.LineSegment(Vector(66.2, -32.8, 0), Vector(22.7, 30, 0)), False)
sketch12.addGeometry(Part.ArcOfCircle(Part.Circle(Vector(6.2, 18.6, 0), Vector(0, 0, 1), 20), math.radians(35), math.radians(89)), False)
sketch12.addGeometry(Part.LineSegment(Vector(6.8, 38.6, 0), Vector(-1.3, 38.8, 0)), False)
sketch12.addGeometry(Part.ArcOfCircle(Part.Circle(Vector(-1.8, 18.8, 0), Vector(0, 0, 1), 20), math.radians(35), math.radians(89)), False)
sketch12.addGeometry(Part.LineSegment(Vector(14.6, 30.2, 0), Vector(57.5, -31.5, 0)), False)
sketch12.addGeometry(Part.ArcOfCircle(Part.Circle(Vector(59.9, -29.8, 0), Vector(0, 0, 1), 3), math.radians(-145), math.radians(-55)), False)
sketch12.addConstraint(Sketcher.Constraint("Tangent", 0, 2, 1, 2))
sketch12.addConstraint(Sketcher.Constraint("Tangent", 1, 1, 2, 1))
sketch12.addConstraint(Sketcher.Constraint("Tangent", 2, 2, 3, 1))
sketch12.addConstraint(Sketcher.Constraint("Tangent", 3, 2, 4, 1))
sketch12.addConstraint(Sketcher.Constraint("Tangent", 4, 2, 5, 2))
sketch12.addConstraint(Sketcher.Constraint("Tangent", 5, 1, 6, 1))
sketch12.addConstraint(Sketcher.Constraint("Tangent", 6, 2, 7, 1))
sketch12.addConstraint(Sketcher.Constraint("Tangent", 7, 2, 0, 1))
sketch12.addConstraint(Sketcher.Constraint("Equal", 3, 5))
sketch12.addConstraint(Sketcher.Constraint("Equal", 1, 7))
sketch12.addConstraint(Sketcher.Constraint("Perpendicular", 0, 2))
sketch12.addConstraint(Sketcher.Constraint("Parallel", 2, 6))
sketch12.addConstraint(Sketcher.Constraint("Radius", 1, 3.0))
sketch12.addConstraint(Sketcher.Constraint("Radius", 3, 20.0))
sketch12.addConstraint(Sketcher.Constraint("Distance", 0, 0.5))
sketch12.addConstraint(Sketcher.Constraint("DistanceY", 6, 2, 2, 2, 61.561))
sketch12.addConstraint(Sketcher.Constraint("Distance", 6, 75.172201))
sketch12.addConstraint(Sketcher.Constraint("DistanceY", 0, 2, 2, 2, 62.031199))
sketch12.addConstraint(Sketcher.Constraint("DistanceX", -1, 1, 1, 3, 63.761311))
sketch12.addConstraint(Sketcher.Constraint("DistanceY", -1, 1, 5, 3, 18.836871))
sketch12.setExpression("Constraints[12]", "Params.sketch12_radius")
sketch12.setExpression("Constraints[13]", "Params.sketch12_radius2")
sketch12.setExpression("Constraints[14]", "Params.sketch12_length")
pocket9 = body.newObject("PartDesign::Pocket", "Pocket008")
pocket9.Profile = sketch12
pocket9.setExpression("Length", "Params.pocket9_length")

doc.recompute()
